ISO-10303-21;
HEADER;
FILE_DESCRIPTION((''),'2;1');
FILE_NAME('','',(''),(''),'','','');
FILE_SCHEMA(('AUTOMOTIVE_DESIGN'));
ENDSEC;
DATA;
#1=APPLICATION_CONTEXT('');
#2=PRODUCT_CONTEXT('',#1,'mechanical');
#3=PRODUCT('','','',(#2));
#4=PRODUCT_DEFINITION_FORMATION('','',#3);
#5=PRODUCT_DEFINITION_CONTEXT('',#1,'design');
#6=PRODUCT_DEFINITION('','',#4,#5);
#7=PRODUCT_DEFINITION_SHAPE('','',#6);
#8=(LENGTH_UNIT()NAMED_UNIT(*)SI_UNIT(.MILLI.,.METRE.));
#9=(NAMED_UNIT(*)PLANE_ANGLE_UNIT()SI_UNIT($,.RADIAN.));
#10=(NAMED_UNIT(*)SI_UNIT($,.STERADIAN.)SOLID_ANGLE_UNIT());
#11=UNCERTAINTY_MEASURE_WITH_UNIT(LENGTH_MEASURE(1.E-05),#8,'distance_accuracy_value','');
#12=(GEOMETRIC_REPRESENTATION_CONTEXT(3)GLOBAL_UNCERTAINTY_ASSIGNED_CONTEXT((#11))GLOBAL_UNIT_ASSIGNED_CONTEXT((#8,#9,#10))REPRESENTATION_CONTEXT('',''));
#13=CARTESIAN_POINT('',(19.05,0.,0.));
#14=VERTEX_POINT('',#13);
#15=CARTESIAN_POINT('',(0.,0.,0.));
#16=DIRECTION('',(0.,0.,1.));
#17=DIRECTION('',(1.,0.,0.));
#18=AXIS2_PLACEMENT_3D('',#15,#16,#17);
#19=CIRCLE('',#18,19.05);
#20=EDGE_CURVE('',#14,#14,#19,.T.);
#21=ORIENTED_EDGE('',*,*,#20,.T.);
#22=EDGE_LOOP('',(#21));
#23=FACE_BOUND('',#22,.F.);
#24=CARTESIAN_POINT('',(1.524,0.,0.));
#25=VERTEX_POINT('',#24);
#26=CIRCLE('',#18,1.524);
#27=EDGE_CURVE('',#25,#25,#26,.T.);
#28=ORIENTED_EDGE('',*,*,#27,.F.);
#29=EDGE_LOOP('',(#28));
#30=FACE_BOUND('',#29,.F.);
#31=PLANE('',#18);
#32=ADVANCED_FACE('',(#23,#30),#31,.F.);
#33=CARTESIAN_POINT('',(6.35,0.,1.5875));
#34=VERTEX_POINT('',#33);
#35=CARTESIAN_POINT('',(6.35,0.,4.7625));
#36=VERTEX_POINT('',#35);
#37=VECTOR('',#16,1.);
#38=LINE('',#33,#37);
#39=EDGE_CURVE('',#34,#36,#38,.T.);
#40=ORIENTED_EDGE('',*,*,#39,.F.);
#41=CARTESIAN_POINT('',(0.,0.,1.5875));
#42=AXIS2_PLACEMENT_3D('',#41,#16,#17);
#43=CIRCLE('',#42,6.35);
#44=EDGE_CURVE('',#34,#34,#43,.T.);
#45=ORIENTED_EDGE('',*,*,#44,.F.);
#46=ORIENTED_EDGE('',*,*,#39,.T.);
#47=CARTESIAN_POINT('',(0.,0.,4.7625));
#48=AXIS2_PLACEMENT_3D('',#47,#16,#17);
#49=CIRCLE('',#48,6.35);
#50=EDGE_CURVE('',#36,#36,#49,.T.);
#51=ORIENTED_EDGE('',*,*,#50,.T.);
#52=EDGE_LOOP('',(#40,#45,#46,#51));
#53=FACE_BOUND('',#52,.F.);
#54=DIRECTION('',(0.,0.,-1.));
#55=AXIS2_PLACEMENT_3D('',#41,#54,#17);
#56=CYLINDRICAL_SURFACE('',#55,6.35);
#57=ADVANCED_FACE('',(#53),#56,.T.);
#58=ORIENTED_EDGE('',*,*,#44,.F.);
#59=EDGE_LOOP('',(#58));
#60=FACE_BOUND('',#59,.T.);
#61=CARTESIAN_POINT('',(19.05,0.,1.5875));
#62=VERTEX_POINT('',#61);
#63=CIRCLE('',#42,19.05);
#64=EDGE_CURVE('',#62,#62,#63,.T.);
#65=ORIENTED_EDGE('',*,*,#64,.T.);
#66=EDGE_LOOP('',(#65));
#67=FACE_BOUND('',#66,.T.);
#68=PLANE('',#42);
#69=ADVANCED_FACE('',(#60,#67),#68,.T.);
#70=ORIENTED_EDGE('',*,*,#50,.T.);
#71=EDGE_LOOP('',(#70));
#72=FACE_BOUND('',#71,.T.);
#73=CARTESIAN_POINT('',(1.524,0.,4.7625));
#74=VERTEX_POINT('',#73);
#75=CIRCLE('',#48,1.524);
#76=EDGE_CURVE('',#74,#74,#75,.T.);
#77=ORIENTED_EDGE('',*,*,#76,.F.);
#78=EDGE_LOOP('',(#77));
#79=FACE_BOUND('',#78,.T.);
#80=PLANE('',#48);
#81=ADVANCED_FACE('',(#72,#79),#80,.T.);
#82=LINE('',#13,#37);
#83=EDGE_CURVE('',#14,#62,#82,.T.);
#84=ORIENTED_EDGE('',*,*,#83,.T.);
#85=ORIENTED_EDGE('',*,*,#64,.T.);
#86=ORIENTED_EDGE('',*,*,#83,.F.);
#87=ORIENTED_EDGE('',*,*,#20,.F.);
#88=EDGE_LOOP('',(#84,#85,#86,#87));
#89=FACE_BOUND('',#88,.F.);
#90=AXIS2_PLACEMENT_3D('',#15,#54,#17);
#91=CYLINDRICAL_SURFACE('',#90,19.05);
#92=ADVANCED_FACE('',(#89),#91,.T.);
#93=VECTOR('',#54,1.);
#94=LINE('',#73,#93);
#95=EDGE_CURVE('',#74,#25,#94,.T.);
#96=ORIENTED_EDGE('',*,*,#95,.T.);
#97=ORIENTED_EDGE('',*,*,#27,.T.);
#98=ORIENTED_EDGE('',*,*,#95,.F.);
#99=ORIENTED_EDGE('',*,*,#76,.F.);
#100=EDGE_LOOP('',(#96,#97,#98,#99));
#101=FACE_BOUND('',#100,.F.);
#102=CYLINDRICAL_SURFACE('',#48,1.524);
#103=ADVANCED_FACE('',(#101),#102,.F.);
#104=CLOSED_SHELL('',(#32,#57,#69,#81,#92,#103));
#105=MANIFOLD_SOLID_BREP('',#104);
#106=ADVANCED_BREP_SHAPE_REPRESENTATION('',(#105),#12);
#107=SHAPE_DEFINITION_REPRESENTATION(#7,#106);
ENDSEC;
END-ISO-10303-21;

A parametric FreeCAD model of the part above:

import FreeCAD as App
import Part
import Sketcher
from FreeCAD import Vector
Q = App.Units.Quantity

doc = App.newDocument("Part")
params = doc.addObject("Spreadsheet::Sheet", "Params")
for row, (alias, value) in enumerate([
    ("sketch1_diameter", "1.5 in"),
    ("pad1_length", "0.0625 in"),
    ("sketch2_diameter", "0.5 in"),
    ("pad2_length", "0.125 in"),
    ("sketch3_diameter", "0.12 in"),
], start=1):
    params.set(f"A{row}", alias)
    params.set(f"B{row}", "=" + value)
    params.setAlias(f"B{row}", alias)

body = doc.addObject("PartDesign::Body", "Body")

sketch1 = body.newObject("Sketcher::SketchObject", "Sketch")
sketch1.AttachmentSupport = (doc.getObject("XY_Plane"), [""])
sketch1.MapMode = "FlatFace"
sketch1.addGeometry(Part.Circle(Vector(0, 0, 0), Vector(0, 0, 1), 19), False)
sketch1.addConstraint([
    Sketcher.Constraint("Coincident", 0, 3, -1, 1),
    Sketcher.Constraint("Diameter", 0, Q("1.5 in")),
])
sketch1.setExpression("Constraints[1]", "Params.sketch1_diameter")
pad1 = body.newObject("PartDesign::Pad", "Pad")
pad1.Profile = sketch1
pad1.setExpression("Length", "Params.pad1_length")

sketch2 = body.newObject("Sketcher::SketchObject", "Sketch001")
sketch2.AttachmentSupport = (doc.getObject("XY_Plane"), [""])
sketch2.MapMode = "FlatFace"
sketch2.AttachmentOffset = App.Placement(Vector(0, 0, 0.0625 * 25.4), App.Rotation())
sketch2.addGeometry(Part.Circle(Vector(0, 0, 0), Vector(0, 0, 1), 6), False)
sketch2.addConstraint([
    Sketcher.Constraint("Coincident", 0, 3, -1, 1),
    Sketcher.Constraint("Diameter", 0, Q("0.5 in")),
])
sketch2.setExpression("Constraints[1]", "Params.sketch2_diameter")
pad2 = body.newObject("PartDesign::Pad", "Pad001")
pad2.Profile = sketch2
pad2.setExpression("Length", "Params.pad2_length")

sketch3 = body.newObject("Sketcher::SketchObject", "Sketch002")
sketch3.AttachmentSupport = (doc.getObject("XY_Plane"), [""])
sketch3.MapMode = "FlatFace"
sketch3.AttachmentOffset = App.Placement(Vector(0, 0, 0.1875 * 25.4), App.Rotation())
sketch3.addGeometry(Part.Circle(Vector(0, 0, 0), Vector(0, 0, 1), 1.5), False)
sketch3.addConstraint([
    Sketcher.Constraint("Coincident", 0, 3, -1, 1),
    Sketcher.Constraint("Diameter", 0, Q("0.12 in")),
])
sketch3.setExpression("Constraints[1]", "Params.sketch3_diameter")
pocket1 = body.newObject("PartDesign::Pocket", "Pocket")
pocket1.Profile = sketch3
pocket1.Type = "ThroughAll"

doc.recompute()
